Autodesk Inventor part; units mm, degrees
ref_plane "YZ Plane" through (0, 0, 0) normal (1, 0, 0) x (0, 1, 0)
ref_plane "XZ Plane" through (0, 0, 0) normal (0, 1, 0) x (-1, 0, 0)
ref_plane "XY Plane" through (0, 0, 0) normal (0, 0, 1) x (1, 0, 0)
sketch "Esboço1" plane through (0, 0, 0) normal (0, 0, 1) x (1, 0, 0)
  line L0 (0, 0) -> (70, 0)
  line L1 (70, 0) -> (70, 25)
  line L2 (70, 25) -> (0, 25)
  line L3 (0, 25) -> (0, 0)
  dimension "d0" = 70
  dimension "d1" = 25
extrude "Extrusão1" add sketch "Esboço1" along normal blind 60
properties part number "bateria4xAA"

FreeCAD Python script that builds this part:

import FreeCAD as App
import Part
import Sketcher
Q = App.Units.Quantity

doc = App.newDocument("Part")
body = doc.addObject("PartDesign::Body", "Body")

sketch1 = doc.addObject("Sketcher::SketchObject", "Sketch")
body.addObject(sketch1)
sketch1.AttachmentSupport = (doc.XY_Plane, [""])
sketch1.MapMode = "FlatFace"
sketch1.addGeometry([
    Part.LineSegment(App.Vector(0, 25, 0), App.Vector(0, 0, 0)),
    Part.LineSegment(App.Vector(0, 0, 0), App.Vector(70, 0, 0)),
    Part.LineSegment(App.Vector(70, 0, 0), App.Vector(70, 25, 0)),
    Part.LineSegment(App.Vector(70, 25, 0), App.Vector(0, 25, 0)),
], False)
sketch1.addConstraint([
    Sketcher.Constraint("Coincident", 0, 2, 1, 1),
    Sketcher.Constraint("Coincident", 1, 2, 2, 1),
    Sketcher.Constraint("Coincident", 2, 2, 3, 1),
    Sketcher.Constraint("Coincident", 3, 2, 0, 1),
    Sketcher.Constraint("Vertical", 0),
    Sketcher.Constraint("Horizontal", 1),
    Sketcher.Constraint("Vertical", 2),
    Sketcher.Constraint("Horizontal", 3),
    Sketcher.Constraint("Coincident", 0, 2, -1, 1),
    Sketcher.Constraint("DistanceX", 1, 1, 1, 2, Q("70 mm")),
    Sketcher.Constraint("DistanceY", 0, 2, 0, 1, Q("25 mm")),
])
pad1 = doc.addObject("PartDesign::Pad", "Pad")
body.addObject(pad1)
pad1.Profile = sketch1
pad1.Length = 60

doc.recompute()
